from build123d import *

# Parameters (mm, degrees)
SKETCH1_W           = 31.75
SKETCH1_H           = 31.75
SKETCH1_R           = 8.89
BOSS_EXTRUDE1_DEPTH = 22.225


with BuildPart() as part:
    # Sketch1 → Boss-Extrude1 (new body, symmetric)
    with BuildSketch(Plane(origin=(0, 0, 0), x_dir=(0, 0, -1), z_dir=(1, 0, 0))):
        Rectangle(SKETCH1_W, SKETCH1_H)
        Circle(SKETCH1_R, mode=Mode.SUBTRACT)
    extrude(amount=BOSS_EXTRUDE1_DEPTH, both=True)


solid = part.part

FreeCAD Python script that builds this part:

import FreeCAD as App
import Part
import Sketcher

V = App.Vector
Q = App.Units.Quantity


def add_polygon(sketch, points):
    """Adds a closed chain of lines whose ends are joined by coincident constraints."""
    first, n = sketch.GeometryCount, len(points)
    for a, b in zip(points, points[1:] + points[:1]):
        sketch.addGeometry(Part.LineSegment(App.Vector(*a, 0), App.Vector(*b, 0)), False)
    for i in range(n):
        sketch.addConstraint(Sketcher.Constraint("Coincident", first + i, 2, first + (i + 1) % n, 1))

doc = App.newDocument("Part")
body = doc.addObject("PartDesign::Body", "Body")

# Sketch on YZ plane
sketch1 = body.newObject("Sketcher::SketchObject", "Sketch")
sketch1.AttachmentSupport = (doc.getObject("YZ_Plane"), [""])
sketch1.MapMode = "FlatFace"
add_polygon(sketch1, [(15.875, 15.875), (-15.875, 15.875), (-15.875, -15.875), (15.875, -15.875)])  # lines 0-3
sketch1.addGeometry(Part.Circle(V(0, 0, 0), V(0, 0, 1), 8.89), False)  # 4
sketch1.addConstraint([
    Sketcher.Constraint("Horizontal", 0),
    Sketcher.Constraint("Vertical", 1),
    Sketcher.Constraint("Horizontal", 2),
    Sketcher.Constraint("Vertical", 3),
    Sketcher.Constraint("Coincident", 4, 3, -1, 1),
    Sketcher.Constraint("Symmetric", 0, 2, 2, 2, -1, 1),
    Sketcher.Constraint("Equal", 2, 1),
    Sketcher.Constraint("Diameter", 4, Q("0.7 in")),
    Sketcher.Constraint("DistanceX", 0, 2, 0, 1, Q("1.25 in")),
])
pad1 = body.newObject("PartDesign::Pad", "Pad")
pad1.Profile = sketch1
pad1.Length = Q("1.75 in")
pad1.Midplane = True

doc.recompute()
